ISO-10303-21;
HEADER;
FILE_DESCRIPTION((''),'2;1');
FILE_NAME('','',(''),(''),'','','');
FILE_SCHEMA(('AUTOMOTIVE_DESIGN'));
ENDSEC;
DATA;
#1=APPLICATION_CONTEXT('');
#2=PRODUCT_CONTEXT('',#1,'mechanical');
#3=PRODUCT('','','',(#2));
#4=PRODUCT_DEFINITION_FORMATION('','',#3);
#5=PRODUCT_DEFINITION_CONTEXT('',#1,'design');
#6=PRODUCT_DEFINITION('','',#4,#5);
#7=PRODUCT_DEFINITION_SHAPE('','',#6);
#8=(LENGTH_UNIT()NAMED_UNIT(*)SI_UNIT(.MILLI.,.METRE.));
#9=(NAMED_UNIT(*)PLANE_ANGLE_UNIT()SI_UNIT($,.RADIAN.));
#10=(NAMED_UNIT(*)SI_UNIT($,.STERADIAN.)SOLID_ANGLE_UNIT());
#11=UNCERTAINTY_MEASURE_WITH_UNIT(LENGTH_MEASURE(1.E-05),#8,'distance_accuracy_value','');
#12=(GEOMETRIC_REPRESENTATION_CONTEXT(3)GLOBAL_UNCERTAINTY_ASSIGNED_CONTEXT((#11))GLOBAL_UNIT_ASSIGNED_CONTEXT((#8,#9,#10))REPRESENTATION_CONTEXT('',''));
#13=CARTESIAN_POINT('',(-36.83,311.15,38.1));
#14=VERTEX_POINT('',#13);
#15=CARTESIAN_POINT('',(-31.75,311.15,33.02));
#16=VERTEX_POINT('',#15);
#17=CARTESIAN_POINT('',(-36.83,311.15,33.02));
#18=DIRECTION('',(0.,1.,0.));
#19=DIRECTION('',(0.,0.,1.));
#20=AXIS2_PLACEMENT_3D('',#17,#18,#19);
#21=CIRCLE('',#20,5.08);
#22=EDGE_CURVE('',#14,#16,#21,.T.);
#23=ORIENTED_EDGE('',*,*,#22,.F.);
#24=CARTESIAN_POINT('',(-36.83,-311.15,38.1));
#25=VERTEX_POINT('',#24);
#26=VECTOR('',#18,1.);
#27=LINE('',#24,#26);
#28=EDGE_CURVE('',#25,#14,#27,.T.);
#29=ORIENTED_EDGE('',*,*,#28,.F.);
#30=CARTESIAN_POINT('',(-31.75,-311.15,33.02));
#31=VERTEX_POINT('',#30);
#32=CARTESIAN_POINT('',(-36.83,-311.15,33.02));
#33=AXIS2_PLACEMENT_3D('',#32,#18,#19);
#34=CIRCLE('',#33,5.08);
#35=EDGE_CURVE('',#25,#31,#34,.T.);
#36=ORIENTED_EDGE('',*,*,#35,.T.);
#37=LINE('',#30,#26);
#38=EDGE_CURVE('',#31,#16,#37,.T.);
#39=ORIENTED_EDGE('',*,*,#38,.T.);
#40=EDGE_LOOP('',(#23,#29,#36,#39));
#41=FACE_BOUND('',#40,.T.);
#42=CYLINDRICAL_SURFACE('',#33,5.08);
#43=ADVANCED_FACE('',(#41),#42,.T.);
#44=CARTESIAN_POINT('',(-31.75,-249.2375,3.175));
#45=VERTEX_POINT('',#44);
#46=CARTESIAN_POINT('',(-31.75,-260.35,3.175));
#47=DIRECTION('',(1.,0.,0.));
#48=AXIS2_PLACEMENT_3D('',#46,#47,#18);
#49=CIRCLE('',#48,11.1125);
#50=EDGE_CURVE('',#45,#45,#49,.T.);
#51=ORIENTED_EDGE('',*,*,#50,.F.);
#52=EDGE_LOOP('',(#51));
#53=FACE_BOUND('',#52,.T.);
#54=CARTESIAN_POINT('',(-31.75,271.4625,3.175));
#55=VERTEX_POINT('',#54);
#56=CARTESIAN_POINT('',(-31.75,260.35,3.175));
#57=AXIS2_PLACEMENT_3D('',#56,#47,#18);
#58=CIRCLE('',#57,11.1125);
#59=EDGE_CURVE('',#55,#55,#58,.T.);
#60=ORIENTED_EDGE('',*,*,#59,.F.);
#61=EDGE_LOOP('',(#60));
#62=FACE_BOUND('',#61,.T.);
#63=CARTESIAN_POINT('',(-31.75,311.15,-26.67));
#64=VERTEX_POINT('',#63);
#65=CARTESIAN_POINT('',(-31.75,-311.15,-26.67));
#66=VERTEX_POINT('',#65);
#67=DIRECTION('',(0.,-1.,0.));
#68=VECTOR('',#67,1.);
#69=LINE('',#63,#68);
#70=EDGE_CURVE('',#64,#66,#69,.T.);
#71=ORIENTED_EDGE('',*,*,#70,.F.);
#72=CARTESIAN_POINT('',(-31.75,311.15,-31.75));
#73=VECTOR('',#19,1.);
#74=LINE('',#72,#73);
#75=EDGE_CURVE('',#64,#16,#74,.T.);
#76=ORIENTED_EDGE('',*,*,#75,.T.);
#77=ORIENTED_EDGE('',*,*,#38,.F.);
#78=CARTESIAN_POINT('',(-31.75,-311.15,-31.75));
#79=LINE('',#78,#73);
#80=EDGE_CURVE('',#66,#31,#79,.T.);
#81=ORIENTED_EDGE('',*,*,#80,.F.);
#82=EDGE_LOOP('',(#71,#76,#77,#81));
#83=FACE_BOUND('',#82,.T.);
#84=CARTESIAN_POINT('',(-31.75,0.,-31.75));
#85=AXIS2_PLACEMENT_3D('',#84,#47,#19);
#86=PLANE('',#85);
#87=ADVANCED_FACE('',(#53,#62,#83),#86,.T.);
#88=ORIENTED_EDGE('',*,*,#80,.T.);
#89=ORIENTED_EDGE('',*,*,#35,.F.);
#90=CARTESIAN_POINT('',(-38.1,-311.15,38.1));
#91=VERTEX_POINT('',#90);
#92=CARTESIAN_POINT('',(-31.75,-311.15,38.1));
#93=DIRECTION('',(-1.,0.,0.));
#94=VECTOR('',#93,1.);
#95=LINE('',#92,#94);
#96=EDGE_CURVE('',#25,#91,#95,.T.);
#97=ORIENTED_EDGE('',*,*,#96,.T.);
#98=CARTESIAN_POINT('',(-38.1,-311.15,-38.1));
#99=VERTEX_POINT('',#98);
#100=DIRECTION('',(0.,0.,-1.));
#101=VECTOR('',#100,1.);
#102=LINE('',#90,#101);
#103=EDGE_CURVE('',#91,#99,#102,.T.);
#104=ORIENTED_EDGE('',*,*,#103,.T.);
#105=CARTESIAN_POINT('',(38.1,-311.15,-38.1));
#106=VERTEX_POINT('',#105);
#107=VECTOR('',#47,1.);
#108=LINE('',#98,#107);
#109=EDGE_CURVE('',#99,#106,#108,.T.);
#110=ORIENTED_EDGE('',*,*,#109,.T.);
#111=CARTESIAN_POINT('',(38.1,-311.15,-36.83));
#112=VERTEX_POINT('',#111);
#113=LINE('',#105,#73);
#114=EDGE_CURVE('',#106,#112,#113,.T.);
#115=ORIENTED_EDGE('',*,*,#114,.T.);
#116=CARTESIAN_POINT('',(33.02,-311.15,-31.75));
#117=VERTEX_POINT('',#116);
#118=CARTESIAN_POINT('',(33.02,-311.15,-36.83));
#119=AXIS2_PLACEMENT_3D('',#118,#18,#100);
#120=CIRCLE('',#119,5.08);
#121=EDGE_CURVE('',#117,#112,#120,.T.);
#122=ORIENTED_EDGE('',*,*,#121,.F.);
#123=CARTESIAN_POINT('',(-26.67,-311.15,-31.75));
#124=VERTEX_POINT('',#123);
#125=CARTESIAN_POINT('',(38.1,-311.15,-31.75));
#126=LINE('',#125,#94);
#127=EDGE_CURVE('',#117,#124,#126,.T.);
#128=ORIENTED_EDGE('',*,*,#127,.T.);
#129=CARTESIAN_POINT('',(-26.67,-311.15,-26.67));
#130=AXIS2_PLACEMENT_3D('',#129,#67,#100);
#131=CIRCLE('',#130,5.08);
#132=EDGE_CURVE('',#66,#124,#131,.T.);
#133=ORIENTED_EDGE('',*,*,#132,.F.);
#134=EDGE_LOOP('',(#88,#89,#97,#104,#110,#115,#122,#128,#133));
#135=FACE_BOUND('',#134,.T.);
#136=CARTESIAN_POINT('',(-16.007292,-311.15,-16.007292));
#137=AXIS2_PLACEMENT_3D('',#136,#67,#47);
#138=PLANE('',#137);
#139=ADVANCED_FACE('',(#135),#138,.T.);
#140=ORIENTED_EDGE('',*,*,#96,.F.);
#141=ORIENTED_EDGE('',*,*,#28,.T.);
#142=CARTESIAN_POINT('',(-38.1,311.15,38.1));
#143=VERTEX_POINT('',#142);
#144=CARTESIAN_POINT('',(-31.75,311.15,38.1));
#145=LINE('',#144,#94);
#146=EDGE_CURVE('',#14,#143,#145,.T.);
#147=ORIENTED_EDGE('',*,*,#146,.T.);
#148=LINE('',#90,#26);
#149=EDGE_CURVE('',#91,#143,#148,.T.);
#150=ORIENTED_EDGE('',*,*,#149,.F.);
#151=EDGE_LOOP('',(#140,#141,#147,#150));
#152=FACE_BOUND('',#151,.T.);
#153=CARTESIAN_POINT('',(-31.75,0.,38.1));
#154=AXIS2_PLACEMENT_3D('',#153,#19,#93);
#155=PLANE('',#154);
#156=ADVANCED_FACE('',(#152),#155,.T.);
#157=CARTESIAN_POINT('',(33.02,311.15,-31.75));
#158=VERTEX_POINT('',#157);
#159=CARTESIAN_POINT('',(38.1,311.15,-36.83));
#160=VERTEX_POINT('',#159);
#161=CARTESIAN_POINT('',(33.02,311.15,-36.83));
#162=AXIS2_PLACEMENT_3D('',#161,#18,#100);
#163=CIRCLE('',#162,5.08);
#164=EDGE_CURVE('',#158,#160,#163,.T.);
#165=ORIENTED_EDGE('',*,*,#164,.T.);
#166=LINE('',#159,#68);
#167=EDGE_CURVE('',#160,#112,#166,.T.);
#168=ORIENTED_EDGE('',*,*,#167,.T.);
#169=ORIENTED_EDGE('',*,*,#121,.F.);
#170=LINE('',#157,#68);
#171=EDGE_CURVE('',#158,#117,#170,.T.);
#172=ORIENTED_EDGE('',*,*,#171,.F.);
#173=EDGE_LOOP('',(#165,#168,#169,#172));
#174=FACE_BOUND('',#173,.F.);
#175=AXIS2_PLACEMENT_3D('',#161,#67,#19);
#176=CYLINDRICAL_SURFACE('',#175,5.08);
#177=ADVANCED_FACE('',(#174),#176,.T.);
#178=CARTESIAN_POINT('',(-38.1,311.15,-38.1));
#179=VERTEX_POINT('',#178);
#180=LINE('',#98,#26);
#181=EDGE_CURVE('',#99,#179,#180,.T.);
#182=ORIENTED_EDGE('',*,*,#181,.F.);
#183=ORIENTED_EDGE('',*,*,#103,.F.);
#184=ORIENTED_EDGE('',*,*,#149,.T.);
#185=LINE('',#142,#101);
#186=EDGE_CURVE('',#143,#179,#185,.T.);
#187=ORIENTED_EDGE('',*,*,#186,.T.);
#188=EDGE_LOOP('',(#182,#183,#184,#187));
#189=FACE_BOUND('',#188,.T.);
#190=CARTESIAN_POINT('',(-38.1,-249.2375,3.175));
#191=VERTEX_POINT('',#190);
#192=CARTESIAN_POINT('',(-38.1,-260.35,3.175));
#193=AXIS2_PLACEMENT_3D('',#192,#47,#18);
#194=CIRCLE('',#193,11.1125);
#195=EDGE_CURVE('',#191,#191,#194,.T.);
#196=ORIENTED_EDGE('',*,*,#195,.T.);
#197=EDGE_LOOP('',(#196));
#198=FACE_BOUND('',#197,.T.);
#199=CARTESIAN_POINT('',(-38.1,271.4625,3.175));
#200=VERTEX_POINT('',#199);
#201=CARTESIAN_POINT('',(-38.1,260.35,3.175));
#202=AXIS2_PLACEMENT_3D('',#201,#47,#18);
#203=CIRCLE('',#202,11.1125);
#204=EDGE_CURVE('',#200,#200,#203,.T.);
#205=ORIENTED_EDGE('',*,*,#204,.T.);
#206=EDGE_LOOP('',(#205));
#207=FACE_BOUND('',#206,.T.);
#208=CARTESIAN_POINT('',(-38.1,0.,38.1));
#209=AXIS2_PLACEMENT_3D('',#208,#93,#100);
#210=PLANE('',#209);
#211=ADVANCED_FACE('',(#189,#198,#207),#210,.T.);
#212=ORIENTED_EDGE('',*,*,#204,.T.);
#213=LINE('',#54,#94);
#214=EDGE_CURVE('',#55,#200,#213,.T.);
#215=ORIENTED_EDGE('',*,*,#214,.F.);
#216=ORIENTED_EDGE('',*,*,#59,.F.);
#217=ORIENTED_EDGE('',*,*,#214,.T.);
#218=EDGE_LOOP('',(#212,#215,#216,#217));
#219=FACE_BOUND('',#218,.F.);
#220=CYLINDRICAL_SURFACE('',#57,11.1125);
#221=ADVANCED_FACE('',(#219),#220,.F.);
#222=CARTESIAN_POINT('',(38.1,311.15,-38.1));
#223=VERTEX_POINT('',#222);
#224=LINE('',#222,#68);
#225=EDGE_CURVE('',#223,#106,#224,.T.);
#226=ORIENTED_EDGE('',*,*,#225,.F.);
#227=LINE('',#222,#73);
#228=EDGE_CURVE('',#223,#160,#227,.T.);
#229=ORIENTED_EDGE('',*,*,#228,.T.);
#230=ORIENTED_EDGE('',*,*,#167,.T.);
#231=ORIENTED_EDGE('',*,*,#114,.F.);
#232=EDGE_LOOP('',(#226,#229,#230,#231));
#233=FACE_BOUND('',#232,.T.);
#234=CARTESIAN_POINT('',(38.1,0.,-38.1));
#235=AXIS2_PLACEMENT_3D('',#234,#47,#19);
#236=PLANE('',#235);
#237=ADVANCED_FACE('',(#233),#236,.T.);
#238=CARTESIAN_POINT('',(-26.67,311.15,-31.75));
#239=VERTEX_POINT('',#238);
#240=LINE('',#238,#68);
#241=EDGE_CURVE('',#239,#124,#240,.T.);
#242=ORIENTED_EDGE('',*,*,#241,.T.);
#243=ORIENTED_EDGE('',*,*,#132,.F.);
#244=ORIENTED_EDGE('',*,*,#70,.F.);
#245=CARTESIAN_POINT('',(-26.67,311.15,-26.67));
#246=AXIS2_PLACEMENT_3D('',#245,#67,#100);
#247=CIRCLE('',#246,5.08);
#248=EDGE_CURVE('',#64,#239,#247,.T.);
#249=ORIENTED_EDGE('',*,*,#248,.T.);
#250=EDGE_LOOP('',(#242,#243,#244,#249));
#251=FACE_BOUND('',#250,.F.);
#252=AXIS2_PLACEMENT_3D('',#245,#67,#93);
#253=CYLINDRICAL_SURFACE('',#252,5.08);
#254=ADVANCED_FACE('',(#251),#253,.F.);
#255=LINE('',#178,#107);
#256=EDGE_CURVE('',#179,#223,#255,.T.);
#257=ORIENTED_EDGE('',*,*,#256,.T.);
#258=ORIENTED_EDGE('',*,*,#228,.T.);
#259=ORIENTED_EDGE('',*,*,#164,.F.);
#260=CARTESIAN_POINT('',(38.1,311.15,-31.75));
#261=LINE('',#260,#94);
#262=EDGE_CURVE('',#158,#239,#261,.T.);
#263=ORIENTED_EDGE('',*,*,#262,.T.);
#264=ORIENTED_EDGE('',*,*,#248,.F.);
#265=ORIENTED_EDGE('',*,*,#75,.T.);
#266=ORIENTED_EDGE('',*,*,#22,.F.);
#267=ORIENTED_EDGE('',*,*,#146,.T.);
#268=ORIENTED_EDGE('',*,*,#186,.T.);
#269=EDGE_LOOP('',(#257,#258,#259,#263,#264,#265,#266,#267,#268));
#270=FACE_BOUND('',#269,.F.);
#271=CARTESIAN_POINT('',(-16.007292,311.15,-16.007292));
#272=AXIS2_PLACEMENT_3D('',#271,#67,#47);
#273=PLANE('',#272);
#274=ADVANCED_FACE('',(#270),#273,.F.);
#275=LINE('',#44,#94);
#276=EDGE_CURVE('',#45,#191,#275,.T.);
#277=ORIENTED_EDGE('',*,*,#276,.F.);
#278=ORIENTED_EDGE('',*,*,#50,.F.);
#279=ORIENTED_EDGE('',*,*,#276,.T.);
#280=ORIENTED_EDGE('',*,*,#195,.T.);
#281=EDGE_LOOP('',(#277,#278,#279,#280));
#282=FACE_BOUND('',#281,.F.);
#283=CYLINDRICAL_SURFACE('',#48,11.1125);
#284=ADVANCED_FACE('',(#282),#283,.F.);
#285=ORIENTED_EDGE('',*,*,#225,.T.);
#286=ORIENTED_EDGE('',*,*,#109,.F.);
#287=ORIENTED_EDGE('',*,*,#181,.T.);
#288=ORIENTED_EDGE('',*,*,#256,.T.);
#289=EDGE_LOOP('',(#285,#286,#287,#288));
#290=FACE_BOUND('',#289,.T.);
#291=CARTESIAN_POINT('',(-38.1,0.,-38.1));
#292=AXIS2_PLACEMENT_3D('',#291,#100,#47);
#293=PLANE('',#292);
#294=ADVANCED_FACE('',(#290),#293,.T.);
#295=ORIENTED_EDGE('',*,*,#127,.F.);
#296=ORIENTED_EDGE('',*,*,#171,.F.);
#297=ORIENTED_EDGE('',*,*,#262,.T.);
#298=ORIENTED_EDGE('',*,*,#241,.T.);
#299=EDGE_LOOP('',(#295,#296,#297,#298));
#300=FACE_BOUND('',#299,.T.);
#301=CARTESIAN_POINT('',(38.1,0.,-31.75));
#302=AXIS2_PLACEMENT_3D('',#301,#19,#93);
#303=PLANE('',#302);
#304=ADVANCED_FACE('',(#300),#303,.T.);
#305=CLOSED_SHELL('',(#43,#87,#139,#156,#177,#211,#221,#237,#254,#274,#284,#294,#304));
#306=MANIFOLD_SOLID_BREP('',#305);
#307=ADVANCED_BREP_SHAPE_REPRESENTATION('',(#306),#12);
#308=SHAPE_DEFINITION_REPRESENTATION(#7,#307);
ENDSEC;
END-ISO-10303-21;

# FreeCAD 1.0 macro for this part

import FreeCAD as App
import Part
import Sketcher
Q = App.Units.Quantity


def edges_at(feature, points):
    """Names of the edges that pass closest to the given points."""
    edges = feature.Shape.Edges
    near = lambda p: min(range(len(edges)), key=lambda i: edges[i].distToShape(Part.Vertex(*p))[0])
    return sorted({f"Edge{near(p) + 1}" for p in points})


def add_polygon(sketch, points):
    """Adds a closed chain of lines whose ends are joined by coincident constraints."""
    first, n = sketch.GeometryCount, len(points)
    for a, b in zip(points, points[1:] + points[:1]):
        sketch.addGeometry(Part.LineSegment(App.Vector(*a, 0), App.Vector(*b, 0)), False)
    for i in range(n):
        sketch.addConstraint(Sketcher.Constraint("Coincident", first + i, 2, first + (i + 1) % n, 1))

doc = App.newDocument("Part")
body = doc.addObject("PartDesign::Body", "Body")

# Sketch on XZ plane
sketch1 = doc.addObject("Sketcher::SketchObject", "Sketch")
body.addObject(sketch1)
sketch1.AttachmentSupport = (doc.XZ_Plane, [""])
sketch1.MapMode = "FlatFace"
add_polygon(sketch1, [(-38, -38), (38, -38), (38, -32), (-32, -32), (-32, 38), (-38, 38)])  # lines 0-5
sketch1.addConstraint([
    Sketcher.Constraint("Horizontal", 0),
    Sketcher.Constraint("Vertical", 1),
    Sketcher.Constraint("Horizontal", 2),
    Sketcher.Constraint("Vertical", 3),
    Sketcher.Constraint("Horizontal", 4),
    Sketcher.Constraint("Vertical", 5),
    Sketcher.Constraint("Symmetric", 0, 2, 4, 2, -1, 1),
    Sketcher.Constraint("Equal", 4, 1),
    Sketcher.Constraint("Equal", 2, 3),
    Sketcher.Constraint("DistanceX", 0, 1, 0, 2, Q("3 in")),
    Sketcher.Constraint("DistanceX", 2, 2, 2, 1, Q("2.75 in")),
])
pad1 = doc.addObject("PartDesign::Pad", "Pad")
body.addObject(pad1)
pad1.Profile = sketch1
pad1.Length = Q("24.5 in")
pad1.Midplane = True
doc.recompute()

fillet = doc.addObject("PartDesign::Fillet", "Fillet")
body.addObject(fillet)
fillet.Base = (pad1, edges_at(pad1, [(-31.75, 0, 38.1), (-31.75, 0, -31.75), (38.1, 0, -31.75)]))
fillet.Radius = Q("0.2 in")

# Sketch on YZ plane
sketch2 = doc.addObject("Sketcher::SketchObject", "Sketch001")
body.addObject(sketch2)
sketch2.AttachmentSupport = (doc.YZ_Plane, [""])
sketch2.MapMode = "FlatFace"
sketch2.AttachmentOffset = App.Placement(App.Vector(0, 0, -1.25 * 25.4), App.Rotation())
sketch2.addGeometry([
    Part.Circle(App.Vector(260, 3, 0), App.Vector(0, 0, 1), 11),
    Part.Circle(App.Vector(-260, 3, 0), App.Vector(0, 0, 1), 11),
], False)
sketch2.addConstraint([
    Sketcher.Constraint("Equal", 0, 1),
    Sketcher.Constraint("Symmetric", 0, 3, 1, 3, -2),
    Sketcher.Constraint("Diameter", 0, Q("0.875 in")),
    Sketcher.Constraint("DistanceX", 1, 3, 0, 3, Q("20.5 in")),
    Sketcher.Constraint("DistanceY", -1, 1, 0, 3, Q("0.125 in")),
])
pocket1 = doc.addObject("PartDesign::Pocket", "Pocket")
body.addObject(pocket1)
pocket1.Profile = sketch2
pocket1.Length = Q("1 in")

doc.recompute()
